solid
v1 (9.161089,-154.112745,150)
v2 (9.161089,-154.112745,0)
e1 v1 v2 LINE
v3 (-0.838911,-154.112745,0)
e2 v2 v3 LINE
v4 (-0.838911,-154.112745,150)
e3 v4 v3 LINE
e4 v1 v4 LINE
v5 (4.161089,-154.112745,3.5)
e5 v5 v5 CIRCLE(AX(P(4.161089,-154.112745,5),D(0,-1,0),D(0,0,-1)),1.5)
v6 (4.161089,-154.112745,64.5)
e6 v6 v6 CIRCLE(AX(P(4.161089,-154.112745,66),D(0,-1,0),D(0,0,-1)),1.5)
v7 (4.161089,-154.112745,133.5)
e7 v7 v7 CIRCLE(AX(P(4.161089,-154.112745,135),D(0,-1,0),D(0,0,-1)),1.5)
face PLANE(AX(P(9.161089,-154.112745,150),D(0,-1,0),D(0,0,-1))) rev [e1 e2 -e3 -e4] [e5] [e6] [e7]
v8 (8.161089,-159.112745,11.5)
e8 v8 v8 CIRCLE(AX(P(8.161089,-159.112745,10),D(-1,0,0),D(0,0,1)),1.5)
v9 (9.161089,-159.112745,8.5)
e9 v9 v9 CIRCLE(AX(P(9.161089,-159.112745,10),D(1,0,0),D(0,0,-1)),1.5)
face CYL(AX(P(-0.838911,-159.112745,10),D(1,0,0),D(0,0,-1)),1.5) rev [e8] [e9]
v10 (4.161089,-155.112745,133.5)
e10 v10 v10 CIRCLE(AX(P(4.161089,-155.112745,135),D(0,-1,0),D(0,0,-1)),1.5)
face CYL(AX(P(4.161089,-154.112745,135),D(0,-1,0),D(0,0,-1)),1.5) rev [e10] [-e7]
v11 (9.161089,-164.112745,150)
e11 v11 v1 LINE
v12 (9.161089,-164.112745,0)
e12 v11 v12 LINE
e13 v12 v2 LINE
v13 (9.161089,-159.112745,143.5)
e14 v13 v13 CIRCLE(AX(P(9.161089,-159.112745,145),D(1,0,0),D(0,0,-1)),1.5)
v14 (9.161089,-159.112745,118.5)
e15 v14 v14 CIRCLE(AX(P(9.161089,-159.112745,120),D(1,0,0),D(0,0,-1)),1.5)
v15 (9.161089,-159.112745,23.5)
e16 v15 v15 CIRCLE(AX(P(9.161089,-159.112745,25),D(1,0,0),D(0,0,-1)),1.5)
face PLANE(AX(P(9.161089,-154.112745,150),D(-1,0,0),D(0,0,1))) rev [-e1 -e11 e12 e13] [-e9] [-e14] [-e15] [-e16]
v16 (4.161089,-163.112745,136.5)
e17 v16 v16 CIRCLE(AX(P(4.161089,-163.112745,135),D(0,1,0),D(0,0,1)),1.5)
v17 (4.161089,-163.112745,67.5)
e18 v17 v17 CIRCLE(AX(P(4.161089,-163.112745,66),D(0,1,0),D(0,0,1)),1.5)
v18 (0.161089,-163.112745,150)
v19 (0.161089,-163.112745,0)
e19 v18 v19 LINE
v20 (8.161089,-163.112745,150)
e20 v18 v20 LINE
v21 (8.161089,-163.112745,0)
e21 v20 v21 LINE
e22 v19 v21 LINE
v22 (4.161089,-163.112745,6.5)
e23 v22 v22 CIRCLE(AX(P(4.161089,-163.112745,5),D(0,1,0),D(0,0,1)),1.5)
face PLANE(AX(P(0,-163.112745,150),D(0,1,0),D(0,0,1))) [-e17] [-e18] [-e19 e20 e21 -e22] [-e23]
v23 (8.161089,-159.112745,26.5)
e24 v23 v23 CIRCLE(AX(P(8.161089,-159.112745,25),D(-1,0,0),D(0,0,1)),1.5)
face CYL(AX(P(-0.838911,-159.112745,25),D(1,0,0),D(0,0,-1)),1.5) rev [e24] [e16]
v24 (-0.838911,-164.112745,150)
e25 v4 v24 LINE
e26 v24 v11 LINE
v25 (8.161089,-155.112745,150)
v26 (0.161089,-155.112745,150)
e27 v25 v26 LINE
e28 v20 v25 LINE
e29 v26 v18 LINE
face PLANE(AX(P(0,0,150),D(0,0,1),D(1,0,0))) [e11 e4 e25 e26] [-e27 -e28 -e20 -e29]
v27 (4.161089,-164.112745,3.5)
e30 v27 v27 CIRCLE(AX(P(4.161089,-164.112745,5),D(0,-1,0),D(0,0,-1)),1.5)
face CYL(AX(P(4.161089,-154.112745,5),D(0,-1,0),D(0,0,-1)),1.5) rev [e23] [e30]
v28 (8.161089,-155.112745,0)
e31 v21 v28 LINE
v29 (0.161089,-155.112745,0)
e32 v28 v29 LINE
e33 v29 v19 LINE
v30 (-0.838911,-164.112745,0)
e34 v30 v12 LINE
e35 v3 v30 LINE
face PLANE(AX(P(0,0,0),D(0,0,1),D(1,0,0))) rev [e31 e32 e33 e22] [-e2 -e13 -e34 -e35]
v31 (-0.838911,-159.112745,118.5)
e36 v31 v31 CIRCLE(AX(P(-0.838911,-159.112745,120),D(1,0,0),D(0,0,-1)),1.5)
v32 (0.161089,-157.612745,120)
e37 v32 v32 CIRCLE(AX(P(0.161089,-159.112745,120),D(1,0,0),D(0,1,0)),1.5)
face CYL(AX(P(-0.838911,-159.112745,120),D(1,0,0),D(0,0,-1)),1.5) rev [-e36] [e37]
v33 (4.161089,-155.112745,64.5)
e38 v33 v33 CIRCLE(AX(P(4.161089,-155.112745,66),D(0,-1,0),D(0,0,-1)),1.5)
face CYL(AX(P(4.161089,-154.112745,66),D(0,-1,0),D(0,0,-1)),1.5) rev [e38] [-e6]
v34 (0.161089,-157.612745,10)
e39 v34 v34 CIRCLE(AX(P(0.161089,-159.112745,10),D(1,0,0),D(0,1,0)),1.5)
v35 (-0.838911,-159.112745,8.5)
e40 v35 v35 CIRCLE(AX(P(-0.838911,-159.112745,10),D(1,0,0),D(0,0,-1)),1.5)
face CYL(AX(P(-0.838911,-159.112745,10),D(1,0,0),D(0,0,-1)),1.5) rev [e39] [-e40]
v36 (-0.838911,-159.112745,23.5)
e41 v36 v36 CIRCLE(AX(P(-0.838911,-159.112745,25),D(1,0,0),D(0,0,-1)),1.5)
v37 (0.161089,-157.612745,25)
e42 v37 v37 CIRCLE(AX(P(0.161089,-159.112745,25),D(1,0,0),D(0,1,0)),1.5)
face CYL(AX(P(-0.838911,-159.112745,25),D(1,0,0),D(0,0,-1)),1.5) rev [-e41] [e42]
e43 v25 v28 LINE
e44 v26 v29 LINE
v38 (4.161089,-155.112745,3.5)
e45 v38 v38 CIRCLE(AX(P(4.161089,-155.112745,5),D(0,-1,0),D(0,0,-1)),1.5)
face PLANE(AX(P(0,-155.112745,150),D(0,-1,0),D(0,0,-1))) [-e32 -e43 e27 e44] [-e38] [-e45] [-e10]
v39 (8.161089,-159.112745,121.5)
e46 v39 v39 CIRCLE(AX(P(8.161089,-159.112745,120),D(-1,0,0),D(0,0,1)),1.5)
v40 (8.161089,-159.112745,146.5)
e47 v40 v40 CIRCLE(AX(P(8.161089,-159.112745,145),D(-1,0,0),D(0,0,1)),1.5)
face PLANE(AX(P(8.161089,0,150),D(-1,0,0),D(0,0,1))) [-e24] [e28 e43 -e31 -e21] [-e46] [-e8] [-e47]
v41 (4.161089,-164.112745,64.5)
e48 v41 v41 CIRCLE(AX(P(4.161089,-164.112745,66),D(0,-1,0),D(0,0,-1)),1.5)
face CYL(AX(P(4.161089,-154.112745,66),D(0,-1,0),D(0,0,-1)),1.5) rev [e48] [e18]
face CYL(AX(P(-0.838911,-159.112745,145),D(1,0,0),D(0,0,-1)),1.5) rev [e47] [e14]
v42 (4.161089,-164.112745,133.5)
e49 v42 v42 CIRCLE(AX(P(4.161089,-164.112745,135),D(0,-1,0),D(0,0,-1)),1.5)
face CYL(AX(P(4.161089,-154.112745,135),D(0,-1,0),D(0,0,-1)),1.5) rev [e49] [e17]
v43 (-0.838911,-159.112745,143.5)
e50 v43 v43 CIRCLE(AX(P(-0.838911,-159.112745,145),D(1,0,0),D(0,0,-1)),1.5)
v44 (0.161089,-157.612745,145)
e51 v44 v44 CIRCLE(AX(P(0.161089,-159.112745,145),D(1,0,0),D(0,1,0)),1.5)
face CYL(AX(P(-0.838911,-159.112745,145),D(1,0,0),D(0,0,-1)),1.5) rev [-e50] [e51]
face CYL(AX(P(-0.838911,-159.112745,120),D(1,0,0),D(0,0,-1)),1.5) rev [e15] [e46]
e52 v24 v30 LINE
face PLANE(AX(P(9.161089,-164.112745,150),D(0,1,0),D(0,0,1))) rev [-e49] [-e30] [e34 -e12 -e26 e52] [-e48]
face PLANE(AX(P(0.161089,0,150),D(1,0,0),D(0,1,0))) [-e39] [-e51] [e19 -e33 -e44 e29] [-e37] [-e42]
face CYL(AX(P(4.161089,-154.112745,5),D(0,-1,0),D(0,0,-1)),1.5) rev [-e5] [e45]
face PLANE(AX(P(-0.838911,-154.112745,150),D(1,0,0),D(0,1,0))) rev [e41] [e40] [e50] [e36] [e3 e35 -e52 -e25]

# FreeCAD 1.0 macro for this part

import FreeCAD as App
import Part
import Sketcher
from FreeCAD import Vector
Q = App.Units.Quantity

doc = App.newDocument("Part")
body = doc.addObject("PartDesign::Body", "Body")

# Sketch on XY plane
sketch1 = body.newObject("Sketcher::SketchObject", "Sketch")
sketch1.AttachmentSupport = (doc.getObject("XY_Plane"), [""])
sketch1.MapMode = "FlatFace"
sketch1.addGeometry([
    Part.LineSegment(Vector(-0.838911, -154.112745, 0), Vector(-0.838911, -164.112745, 0)),  # 0
    Part.LineSegment(Vector(-0.838911, -164.112745, 0), Vector(9.161089, -164.112745, 0)),  # 1
    Part.LineSegment(Vector(9.161089, -164.112745, 0), Vector(9.161089, -154.112745, 0)),  # 2
    Part.LineSegment(Vector(9.161089, -154.112745, 0), Vector(-0.838911, -154.112745, 0)),  # 3
    Part.LineSegment(Vector(8.161089, -163.112745, 0), Vector(0.161089, -163.112745, 0)),  # 4
    Part.LineSegment(Vector(0.161089, -163.112745, 0), Vector(0.161089, -155.112745, 0)),  # 5
    Part.LineSegment(Vector(0.161089, -155.112745, 0), Vector(8.161089, -155.112745, 0)),  # 6
    Part.LineSegment(Vector(8.161089, -155.112745, 0), Vector(8.161089, -163.112745, 0)),  # 7
], False)
sketch1.addConstraint([
    Sketcher.Constraint("Coincident", 0, 2, 1, 1),
    Sketcher.Constraint("Coincident", 1, 2, 2, 1),
    Sketcher.Constraint("Coincident", 2, 2, 3, 1),
    Sketcher.Constraint("Coincident", 3, 2, 0, 1),
    Sketcher.Constraint("Coincident", 4, 2, 5, 1),
    Sketcher.Constraint("Coincident", 5, 2, 6, 1),
    Sketcher.Constraint("Coincident", 6, 2, 7, 1),
    Sketcher.Constraint("Coincident", 7, 2, 4, 1),
    Sketcher.Constraint("Vertical", 0),
    Sketcher.Constraint("Horizontal", 1),
    Sketcher.Constraint("Vertical", 2),
    Sketcher.Constraint("Horizontal", 3),
    Sketcher.Constraint("Horizontal", 4),
    Sketcher.Constraint("Vertical", 5),
    Sketcher.Constraint("Horizontal", 6),
    Sketcher.Constraint("Vertical", 7),
    Sketcher.Constraint("Equal", 3, 0),
    Sketcher.Constraint("Equal", 6, 5),
    Sketcher.Constraint("DistanceX", 1, 1, 1, 2, Q("10 mm")),
    Sketcher.Constraint("DistanceX", 4, 2, 4, 1, Q("8 mm")),
    Sketcher.Constraint("DistanceX", 0, 2, 4, 2, Q("1 mm")),
    Sketcher.Constraint("DistanceY", 0, 2, 4, 2, Q("1 mm")),
    Sketcher.Constraint("DistanceX", 0, 2, -1, 1, Q("0.838911 mm")),
    Sketcher.Constraint("DistanceY", 0, 2, -1, 1, Q("164.112745 mm")),
])
pad1 = body.newObject("PartDesign::Pad", "Pad")
pad1.Profile = sketch1
pad1.Length = 150

# Sketch on XZ plane
sketch2 = body.newObject("Sketcher::SketchObject", "Sketch001")
sketch2.AttachmentSupport = (doc.getObject("XZ_Plane"), [""])
sketch2.MapMode = "FlatFace"
sketch2.AttachmentOffset = App.Placement(Vector(0, 0, 164.112745), App.Rotation())
sketch2.addGeometry([
    Part.Circle(Vector(4.161089, 135, 0), Vector(0, 0, 1), 1.5),
    Part.Circle(Vector(4.161089, 66, 0), Vector(0, 0, 1), 1.5),
    Part.Circle(Vector(4.161089, 5, 0), Vector(0, 0, 1), 1.5),
], False)
sketch2.addConstraint([
    Sketcher.Constraint("Equal", 0, 1),
    Sketcher.Constraint("Equal", 1, 2),
    Sketcher.Constraint("Vertical", 0, 3, 1, 3),
    Sketcher.Constraint("Vertical", 1, 3, 2, 3),
    Sketcher.Constraint("Diameter", 0, Q("3 mm")),
    Sketcher.Constraint("DistanceY", -1, 1, 0, 3, Q("135 mm")),
    Sketcher.Constraint("DistanceY", -1, 1, 1, 3, Q("66 mm")),
    Sketcher.Constraint("DistanceY", -1, 1, 2, 3, Q("5 mm")),
    Sketcher.Constraint("DistanceX", -1, 1, 0, 3, Q("4.161089 mm")),
])
pocket1 = body.newObject("PartDesign::Pocket", "Pocket")
pocket1.Profile = sketch2
pocket1.Type = "ThroughAll"

# Sketch on YZ plane
sketch3 = body.newObject("Sketcher::SketchObject", "Sketch002")
sketch3.AttachmentSupport = (doc.getObject("YZ_Plane"), [""])
sketch3.MapMode = "FlatFace"
sketch3.AttachmentOffset = App.Placement(Vector(0, 0, 9.161089), App.Rotation())
sketch3.addGeometry([
    Part.Circle(Vector(-159.112745, 25, 0), Vector(0, 0, 1), 1.5),
    Part.Circle(Vector(-159.112745, 10, 0), Vector(0, 0, 1), 1.5),
    Part.Circle(Vector(-159.112745, 120, 0), Vector(0, 0, 1), 1.5),
    Part.Circle(Vector(-159.112745, 145, 0), Vector(0, 0, 1), 1.5),
], False)
sketch3.addConstraint([
    Sketcher.Constraint("Equal", 0, 1),
    Sketcher.Constraint("Equal", 1, 2),
    Sketcher.Constraint("Equal", 2, 3),
    Sketcher.Constraint("Vertical", 0, 3, 1, 3),
    Sketcher.Constraint("Vertical", 1, 3, 2, 3),
    Sketcher.Constraint("Vertical", 2, 3, 3, 3),
    Sketcher.Constraint("Diameter", 0, Q("3 mm")),
    Sketcher.Constraint("DistanceY", -1, 1, 0, 3, Q("25 mm")),
    Sketcher.Constraint("DistanceY", -1, 1, 1, 3, Q("10 mm")),
    Sketcher.Constraint("DistanceY", -1, 1, 2, 3, Q("120 mm")),
    Sketcher.Constraint("DistanceY", -1, 1, 3, 3, Q("145 mm")),
    Sketcher.Constraint("DistanceX", 0, 3, -1, 1, Q("159.112745 mm")),
])
pocket2 = body.newObject("PartDesign::Pocket", "Pocket001")
pocket2.Profile = sketch3
pocket2.Type = "ThroughAll"

doc.recompute()
